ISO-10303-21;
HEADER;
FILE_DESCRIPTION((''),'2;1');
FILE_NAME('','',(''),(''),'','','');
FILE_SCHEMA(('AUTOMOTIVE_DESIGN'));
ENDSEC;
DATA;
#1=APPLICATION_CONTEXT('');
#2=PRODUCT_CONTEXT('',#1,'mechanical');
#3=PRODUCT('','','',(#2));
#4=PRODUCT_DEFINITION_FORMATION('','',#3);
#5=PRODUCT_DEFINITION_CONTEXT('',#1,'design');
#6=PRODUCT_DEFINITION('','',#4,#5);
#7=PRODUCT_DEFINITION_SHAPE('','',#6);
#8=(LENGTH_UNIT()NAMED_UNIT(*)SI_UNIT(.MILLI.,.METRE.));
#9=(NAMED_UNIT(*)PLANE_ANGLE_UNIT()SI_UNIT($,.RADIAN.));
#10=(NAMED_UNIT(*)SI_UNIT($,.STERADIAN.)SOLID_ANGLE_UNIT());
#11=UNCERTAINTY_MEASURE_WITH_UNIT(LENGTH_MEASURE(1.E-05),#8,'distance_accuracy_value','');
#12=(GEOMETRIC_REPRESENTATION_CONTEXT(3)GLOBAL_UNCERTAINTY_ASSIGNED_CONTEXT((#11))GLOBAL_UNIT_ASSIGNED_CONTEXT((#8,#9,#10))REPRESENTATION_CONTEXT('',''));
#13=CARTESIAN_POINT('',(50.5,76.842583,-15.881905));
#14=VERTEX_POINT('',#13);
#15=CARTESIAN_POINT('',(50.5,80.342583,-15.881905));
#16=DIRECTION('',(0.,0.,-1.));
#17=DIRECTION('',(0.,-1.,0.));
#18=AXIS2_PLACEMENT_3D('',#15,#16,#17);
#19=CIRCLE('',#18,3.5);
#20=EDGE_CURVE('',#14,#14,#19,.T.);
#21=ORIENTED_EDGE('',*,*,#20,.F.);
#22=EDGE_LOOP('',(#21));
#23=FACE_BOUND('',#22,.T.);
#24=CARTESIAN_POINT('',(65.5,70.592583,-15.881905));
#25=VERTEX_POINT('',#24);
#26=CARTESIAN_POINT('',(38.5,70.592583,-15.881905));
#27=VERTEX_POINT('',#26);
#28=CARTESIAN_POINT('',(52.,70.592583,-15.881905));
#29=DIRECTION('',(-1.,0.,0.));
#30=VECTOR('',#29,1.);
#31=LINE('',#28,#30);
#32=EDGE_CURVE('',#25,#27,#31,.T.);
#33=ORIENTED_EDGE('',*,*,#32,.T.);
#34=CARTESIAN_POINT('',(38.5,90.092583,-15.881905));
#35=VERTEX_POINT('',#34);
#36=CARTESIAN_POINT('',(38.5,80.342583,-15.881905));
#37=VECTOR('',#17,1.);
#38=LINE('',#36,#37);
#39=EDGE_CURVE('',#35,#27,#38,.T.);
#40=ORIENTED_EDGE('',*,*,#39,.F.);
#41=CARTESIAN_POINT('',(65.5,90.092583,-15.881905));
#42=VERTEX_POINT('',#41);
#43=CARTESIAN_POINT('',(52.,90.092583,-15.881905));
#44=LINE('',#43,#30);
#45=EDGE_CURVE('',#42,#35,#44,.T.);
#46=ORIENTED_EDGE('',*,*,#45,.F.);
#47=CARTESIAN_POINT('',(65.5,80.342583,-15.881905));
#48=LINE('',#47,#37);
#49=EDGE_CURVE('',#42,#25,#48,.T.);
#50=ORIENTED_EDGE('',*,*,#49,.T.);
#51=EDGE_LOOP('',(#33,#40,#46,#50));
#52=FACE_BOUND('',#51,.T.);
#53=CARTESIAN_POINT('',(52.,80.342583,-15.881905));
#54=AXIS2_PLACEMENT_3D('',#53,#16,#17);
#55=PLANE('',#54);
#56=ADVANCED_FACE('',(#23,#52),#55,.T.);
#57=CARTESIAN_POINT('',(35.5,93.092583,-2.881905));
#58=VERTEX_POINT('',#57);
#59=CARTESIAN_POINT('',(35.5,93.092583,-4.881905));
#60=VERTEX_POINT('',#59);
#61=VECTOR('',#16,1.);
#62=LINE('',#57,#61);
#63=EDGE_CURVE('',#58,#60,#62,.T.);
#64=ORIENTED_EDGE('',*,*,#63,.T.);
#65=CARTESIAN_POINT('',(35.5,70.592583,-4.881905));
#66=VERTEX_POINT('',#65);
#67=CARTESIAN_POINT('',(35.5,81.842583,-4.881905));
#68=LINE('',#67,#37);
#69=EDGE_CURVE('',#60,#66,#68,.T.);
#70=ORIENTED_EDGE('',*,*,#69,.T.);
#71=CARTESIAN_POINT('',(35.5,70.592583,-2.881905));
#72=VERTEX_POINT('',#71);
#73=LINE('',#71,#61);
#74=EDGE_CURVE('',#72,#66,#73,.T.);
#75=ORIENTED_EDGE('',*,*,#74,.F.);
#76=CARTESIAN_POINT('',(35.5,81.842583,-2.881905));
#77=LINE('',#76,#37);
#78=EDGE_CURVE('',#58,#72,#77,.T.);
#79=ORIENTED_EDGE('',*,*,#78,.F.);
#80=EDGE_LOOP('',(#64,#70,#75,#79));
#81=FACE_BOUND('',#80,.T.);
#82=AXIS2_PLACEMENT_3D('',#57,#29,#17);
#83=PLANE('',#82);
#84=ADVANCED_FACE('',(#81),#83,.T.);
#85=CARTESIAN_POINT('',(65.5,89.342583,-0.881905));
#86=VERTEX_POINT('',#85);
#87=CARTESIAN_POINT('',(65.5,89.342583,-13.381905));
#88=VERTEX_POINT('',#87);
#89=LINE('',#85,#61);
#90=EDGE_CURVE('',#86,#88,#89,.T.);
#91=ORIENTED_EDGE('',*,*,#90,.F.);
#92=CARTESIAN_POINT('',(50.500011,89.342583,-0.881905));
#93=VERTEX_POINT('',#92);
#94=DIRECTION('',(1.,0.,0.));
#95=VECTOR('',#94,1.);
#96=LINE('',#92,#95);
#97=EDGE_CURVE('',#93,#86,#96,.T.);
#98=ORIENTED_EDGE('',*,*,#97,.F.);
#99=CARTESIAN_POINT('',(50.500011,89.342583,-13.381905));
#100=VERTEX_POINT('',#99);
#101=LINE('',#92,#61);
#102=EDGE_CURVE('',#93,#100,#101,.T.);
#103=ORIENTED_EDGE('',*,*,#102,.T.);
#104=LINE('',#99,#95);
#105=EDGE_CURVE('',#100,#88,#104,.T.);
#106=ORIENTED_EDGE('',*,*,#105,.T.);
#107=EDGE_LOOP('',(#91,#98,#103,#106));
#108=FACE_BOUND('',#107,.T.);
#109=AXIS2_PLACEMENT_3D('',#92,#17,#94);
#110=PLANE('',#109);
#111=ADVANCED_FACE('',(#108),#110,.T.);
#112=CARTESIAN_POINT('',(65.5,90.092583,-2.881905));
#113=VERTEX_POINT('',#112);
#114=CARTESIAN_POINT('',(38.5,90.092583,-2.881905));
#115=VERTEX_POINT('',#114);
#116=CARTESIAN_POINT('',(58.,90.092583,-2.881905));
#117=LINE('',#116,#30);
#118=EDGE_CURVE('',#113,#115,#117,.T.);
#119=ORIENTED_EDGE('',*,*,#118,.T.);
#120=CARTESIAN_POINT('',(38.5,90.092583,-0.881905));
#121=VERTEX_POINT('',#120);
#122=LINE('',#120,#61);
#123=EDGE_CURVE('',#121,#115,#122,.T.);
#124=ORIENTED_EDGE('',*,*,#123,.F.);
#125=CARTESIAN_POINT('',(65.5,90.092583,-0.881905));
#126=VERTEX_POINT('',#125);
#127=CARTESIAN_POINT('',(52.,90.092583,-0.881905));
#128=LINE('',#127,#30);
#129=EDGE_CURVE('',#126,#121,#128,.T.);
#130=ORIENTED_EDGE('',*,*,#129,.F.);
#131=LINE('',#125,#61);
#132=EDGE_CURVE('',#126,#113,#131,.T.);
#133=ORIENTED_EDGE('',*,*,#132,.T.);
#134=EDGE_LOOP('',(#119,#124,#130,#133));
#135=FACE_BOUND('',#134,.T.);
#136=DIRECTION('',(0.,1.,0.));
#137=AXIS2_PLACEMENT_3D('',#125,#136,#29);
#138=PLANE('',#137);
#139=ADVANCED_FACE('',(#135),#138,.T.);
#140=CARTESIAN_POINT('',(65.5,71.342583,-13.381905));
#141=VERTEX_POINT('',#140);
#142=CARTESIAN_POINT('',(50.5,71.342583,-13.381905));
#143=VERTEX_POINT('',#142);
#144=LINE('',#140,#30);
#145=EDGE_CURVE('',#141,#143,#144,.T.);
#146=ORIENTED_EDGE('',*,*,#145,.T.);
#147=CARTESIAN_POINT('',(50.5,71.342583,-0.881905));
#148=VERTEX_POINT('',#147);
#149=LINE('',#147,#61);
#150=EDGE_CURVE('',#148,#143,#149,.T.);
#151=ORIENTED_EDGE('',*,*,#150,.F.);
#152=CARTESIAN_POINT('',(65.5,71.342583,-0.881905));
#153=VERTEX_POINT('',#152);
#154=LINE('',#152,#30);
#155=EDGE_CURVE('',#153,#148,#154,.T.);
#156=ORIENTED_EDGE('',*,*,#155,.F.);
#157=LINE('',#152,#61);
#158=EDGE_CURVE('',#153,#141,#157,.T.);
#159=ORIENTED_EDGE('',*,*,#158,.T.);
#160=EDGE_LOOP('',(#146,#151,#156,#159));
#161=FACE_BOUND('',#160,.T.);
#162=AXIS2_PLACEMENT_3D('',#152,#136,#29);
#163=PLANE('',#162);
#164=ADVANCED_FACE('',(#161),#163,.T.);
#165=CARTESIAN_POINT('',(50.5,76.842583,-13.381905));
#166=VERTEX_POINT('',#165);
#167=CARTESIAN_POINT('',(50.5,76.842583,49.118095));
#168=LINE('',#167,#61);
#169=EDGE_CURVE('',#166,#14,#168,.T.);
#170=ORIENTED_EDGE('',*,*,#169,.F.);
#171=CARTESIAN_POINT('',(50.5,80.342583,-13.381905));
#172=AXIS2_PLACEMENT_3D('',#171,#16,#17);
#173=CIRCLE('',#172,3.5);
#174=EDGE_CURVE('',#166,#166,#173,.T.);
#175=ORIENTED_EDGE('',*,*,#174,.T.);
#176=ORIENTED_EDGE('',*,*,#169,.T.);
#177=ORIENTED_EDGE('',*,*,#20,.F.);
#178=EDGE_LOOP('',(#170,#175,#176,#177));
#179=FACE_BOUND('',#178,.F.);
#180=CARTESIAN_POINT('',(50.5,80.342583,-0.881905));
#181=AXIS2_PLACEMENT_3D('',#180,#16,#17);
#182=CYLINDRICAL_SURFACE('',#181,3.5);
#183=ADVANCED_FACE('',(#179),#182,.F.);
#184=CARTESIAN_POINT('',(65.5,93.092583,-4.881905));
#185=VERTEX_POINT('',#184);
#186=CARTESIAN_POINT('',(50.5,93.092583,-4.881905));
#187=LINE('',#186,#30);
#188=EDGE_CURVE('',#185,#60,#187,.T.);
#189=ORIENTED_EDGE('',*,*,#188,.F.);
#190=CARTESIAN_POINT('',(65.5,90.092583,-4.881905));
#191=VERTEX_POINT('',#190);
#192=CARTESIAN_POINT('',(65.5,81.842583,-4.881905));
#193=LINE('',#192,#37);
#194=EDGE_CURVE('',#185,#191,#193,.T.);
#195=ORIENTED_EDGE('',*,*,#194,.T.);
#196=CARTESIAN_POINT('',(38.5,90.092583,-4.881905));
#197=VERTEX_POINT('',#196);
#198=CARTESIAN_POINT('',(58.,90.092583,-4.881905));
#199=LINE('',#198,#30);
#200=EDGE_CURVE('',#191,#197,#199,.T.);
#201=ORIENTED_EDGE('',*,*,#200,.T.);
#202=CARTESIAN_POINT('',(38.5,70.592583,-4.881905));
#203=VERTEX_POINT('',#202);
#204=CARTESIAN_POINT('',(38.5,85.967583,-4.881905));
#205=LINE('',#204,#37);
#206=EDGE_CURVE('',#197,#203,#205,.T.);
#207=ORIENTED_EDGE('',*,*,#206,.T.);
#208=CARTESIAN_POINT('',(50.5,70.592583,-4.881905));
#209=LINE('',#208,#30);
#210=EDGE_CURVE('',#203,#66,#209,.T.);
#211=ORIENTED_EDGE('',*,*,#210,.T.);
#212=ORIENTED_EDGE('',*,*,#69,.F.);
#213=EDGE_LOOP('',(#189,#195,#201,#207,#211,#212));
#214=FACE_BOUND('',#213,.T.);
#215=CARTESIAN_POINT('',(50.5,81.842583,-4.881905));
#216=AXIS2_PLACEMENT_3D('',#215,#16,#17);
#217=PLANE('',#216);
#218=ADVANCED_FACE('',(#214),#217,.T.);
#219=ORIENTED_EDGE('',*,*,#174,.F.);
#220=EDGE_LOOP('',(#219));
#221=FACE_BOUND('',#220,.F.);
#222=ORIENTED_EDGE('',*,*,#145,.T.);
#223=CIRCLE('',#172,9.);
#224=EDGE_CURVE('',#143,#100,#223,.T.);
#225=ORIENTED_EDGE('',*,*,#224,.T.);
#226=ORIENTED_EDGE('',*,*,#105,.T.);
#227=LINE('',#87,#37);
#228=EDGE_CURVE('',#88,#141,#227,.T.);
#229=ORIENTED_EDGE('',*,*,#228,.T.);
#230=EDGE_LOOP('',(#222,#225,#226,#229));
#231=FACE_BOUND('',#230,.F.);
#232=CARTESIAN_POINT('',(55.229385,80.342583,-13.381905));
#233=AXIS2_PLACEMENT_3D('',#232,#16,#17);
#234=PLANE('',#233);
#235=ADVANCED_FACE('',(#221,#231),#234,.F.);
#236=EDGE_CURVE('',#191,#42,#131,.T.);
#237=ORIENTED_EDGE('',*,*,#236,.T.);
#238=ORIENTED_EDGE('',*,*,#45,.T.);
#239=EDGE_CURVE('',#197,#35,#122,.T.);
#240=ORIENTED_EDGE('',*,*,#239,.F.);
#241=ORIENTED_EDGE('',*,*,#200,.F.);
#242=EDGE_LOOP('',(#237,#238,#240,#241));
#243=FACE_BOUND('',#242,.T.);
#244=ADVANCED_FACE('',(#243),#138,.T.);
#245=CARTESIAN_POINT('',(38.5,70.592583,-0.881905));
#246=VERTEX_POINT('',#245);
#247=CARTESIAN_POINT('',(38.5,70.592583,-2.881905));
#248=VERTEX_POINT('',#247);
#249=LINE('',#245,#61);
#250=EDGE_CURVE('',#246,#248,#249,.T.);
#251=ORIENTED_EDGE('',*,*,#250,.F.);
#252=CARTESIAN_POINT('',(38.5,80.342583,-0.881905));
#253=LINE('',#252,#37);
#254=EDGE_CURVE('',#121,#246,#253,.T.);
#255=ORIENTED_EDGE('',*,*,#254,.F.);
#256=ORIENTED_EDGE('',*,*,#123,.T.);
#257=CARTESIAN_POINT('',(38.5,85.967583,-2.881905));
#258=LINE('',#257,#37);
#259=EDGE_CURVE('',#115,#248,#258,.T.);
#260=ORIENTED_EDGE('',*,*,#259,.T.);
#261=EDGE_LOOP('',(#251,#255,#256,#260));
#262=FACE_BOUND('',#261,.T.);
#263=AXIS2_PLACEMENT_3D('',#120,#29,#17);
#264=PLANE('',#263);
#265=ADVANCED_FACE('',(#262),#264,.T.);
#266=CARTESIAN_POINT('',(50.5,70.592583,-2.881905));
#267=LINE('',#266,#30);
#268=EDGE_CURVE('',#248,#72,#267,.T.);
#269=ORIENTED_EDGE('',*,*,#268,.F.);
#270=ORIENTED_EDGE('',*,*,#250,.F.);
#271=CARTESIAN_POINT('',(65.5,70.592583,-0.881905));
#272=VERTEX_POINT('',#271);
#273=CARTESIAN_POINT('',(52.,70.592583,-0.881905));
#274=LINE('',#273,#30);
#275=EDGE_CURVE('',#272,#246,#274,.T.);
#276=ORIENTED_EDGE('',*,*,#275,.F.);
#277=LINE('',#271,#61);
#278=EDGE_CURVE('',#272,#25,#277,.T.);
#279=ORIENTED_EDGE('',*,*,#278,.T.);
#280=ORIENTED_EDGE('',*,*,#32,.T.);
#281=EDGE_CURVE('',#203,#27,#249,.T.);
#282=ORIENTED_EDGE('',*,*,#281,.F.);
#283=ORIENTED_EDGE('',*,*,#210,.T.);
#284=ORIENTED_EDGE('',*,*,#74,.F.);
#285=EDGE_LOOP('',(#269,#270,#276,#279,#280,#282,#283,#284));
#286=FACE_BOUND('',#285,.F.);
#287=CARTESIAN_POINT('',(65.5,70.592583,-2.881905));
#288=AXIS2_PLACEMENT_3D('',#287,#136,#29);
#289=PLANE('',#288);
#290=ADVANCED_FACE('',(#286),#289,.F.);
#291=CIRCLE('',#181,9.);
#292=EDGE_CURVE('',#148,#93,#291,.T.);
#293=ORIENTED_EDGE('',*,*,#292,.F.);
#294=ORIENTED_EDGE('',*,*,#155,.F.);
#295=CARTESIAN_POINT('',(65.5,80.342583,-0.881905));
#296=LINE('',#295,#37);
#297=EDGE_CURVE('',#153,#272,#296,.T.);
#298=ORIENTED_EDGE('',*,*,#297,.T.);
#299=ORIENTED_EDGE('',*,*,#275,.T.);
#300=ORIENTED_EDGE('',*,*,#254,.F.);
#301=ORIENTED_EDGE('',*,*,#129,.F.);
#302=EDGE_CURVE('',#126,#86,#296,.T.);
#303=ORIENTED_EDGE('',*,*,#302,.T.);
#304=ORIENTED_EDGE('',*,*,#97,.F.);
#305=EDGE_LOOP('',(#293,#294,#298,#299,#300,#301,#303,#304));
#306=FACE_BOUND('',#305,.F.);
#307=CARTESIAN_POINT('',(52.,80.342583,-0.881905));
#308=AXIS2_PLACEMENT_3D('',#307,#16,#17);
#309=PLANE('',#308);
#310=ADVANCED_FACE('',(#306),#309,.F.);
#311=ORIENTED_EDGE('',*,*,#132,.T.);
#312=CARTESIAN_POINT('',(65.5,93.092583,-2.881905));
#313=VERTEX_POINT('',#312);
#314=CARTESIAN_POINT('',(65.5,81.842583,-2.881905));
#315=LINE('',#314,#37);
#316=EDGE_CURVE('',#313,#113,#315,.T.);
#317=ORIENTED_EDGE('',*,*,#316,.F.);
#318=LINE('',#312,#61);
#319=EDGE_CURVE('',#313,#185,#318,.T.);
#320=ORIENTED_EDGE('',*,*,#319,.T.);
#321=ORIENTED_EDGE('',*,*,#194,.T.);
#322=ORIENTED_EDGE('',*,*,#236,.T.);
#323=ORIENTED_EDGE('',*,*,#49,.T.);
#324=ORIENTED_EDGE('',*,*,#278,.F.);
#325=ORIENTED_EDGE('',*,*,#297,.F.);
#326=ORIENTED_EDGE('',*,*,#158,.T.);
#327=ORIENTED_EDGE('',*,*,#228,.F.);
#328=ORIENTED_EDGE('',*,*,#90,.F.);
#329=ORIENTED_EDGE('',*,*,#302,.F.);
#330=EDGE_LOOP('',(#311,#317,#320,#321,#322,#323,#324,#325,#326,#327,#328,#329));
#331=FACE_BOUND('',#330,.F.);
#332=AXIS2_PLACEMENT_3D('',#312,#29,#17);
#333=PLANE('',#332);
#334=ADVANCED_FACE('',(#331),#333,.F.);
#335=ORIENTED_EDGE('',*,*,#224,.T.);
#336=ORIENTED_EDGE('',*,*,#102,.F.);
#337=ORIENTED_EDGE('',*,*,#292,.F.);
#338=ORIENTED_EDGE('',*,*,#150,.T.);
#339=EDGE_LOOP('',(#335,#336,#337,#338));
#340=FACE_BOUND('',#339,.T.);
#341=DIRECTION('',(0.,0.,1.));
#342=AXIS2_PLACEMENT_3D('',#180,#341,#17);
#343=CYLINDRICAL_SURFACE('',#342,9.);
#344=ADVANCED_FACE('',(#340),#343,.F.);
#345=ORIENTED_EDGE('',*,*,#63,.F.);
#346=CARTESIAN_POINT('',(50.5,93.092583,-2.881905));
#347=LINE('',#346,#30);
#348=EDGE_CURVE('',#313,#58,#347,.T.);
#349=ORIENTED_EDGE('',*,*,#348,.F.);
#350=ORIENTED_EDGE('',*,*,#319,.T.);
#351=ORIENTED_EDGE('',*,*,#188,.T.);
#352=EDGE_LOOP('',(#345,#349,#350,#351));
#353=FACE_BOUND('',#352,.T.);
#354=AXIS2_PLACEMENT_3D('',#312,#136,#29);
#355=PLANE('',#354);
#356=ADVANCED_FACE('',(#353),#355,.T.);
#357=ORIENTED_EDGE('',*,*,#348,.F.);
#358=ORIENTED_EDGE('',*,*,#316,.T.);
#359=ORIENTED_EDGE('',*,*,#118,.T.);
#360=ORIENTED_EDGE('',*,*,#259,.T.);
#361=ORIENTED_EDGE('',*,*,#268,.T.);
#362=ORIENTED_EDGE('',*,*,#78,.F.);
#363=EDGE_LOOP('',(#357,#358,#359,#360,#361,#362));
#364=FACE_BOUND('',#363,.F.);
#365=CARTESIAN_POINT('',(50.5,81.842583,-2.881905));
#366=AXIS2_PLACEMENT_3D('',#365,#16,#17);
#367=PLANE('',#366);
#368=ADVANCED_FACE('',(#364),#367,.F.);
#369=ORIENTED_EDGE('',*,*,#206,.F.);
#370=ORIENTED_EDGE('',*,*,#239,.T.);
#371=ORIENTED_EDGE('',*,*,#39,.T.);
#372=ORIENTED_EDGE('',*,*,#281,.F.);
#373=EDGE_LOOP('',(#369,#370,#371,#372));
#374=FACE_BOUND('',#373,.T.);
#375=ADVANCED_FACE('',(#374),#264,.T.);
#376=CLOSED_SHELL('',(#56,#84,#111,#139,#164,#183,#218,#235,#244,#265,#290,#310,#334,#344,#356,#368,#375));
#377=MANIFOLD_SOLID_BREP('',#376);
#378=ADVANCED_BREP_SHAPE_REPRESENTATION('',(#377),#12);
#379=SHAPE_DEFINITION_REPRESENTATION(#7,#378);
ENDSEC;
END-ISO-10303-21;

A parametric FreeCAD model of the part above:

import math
import FreeCAD as App
import Part
import Sketcher
from FreeCAD import Vector
Q = App.Units.Quantity


def add_polygon(sketch, points):
    """Adds a closed chain of lines whose ends are joined by coincident constraints."""
    first, n = sketch.GeometryCount, len(points)
    for a, b in zip(points, points[1:] + points[:1]):
        sketch.addGeometry(Part.LineSegment(App.Vector(*a, 0), App.Vector(*b, 0)), False)
    for i in range(n):
        sketch.addConstraint(Sketcher.Constraint("Coincident", first + i, 2, first + (i + 1) % n, 1))

doc = App.newDocument("Part")
body = doc.addObject("PartDesign::Body", "Body")

# Sketch on XY plane
sketch1 = doc.addObject("Sketcher::SketchObject", "Sketch")
body.addObject(sketch1)
sketch1.AttachmentSupport = (doc.XY_Plane, [""])
sketch1.MapMode = "FlatFace"
add_polygon(sketch1, [(0, 27), (0, 0), (20, 0), (20, 27)])  # lines 0-3
sketch1.addConstraint([
    Sketcher.Constraint("Vertical", 0),
    Sketcher.Constraint("Horizontal", 1),
    Sketcher.Constraint("Vertical", 2),
    Sketcher.Constraint("Horizontal", 3),
    Sketcher.Constraint("Coincident", 0, 2, -1, 1),
    Sketcher.Constraint("DistanceY", 0, 2, 0, 1, Q("27 mm")),
    Sketcher.Constraint("DistanceX", 1, 1, 1, 2, Q("19.5 mm")),
])
pad1 = doc.addObject("PartDesign::Pad", "Pad")
body.addObject(pad1)
pad1.Profile = sketch1
pad1.Length = 15

# Sketch on XY plane
sketch2 = doc.addObject("Sketcher::SketchObject", "Sketch001")
body.addObject(sketch2)
sketch2.AttachmentSupport = (doc.XY_Plane, [""])
sketch2.MapMode = "FlatFace"
sketch2.AttachmentOffset = App.Placement(Vector(0, 0, 2), App.Rotation())
add_polygon(sketch2, [(-3, 30), (-3, 0), (20, 0), (20, 30)])  # lines 0-3
sketch2.addConstraint([
    Sketcher.Constraint("Vertical", 0),
    Sketcher.Constraint("Horizontal", 1),
    Sketcher.Constraint("Vertical", 2),
    Sketcher.Constraint("Horizontal", 3),
    Sketcher.Constraint("PointOnObject", 0, 2, -1),
    Sketcher.Constraint("DistanceY", 0, 2, 0, 1, Q("30 mm")),
    Sketcher.Constraint("DistanceX", 1, 1, 1, 2, Q("22.5 mm")),
    Sketcher.Constraint("DistanceX", 0, 2, -1, 1, Q("3 mm")),
])
pad2 = doc.addObject("PartDesign::Pad", "Pad001")
body.addObject(pad2)
pad2.Profile = sketch2
pad2.Length = 2

# Sketch on XY plane
sketch3 = doc.addObject("Sketcher::SketchObject", "Sketch002")
body.addObject(sketch3)
sketch3.AttachmentSupport = (doc.XY_Plane, [""])
sketch3.MapMode = "FlatFace"
sketch3.addGeometry([
    Part.ArcOfCircle(Part.Circle(Vector(10, 15, 0), Vector(0, 0, 1), 9), math.radians(0), math.radians(180)),
    Part.LineSegment(Vector(1, 15, 0), Vector(1, 0, 0)),
    Part.LineSegment(Vector(1, 0, 0), Vector(19, 0, 0)),
    Part.LineSegment(Vector(19, 0, 0), Vector(19, 15, 0)),
], False)
sketch3.addConstraint([
    Sketcher.Constraint("Tangent", 0, 2, 1, 1),
    Sketcher.Constraint("Coincident", 1, 2, 2, 1),
    Sketcher.Constraint("Coincident", 2, 2, 3, 1),
    Sketcher.Constraint("Tangent", 3, 2, 0, 1),
    Sketcher.Constraint("Vertical", 1),
    Sketcher.Constraint("Horizontal", 2),
    Sketcher.Constraint("Vertical", 3),
    Sketcher.Constraint("PointOnObject", 1, 2, -1),
    Sketcher.Constraint("Radius", 0, Q("9 mm")),
    Sketcher.Constraint("DistanceY", 3, 1, 3, 2, Q("15 mm")),
    Sketcher.Constraint("DistanceX", -1, 1, 0, 3, Q("9.75 mm")),
])
pocket1 = doc.addObject("PartDesign::Pocket", "Pocket")
body.addObject(pocket1)
pocket1.Profile = sketch3
pocket1.Length = 12.5
pocket1.Reversed = True

# Sketch on XY plane
sketch4 = doc.addObject("Sketcher::SketchObject", "Sketch003")
body.addObject(sketch4)
sketch4.AttachmentSupport = (doc.XY_Plane, [""])
sketch4.MapMode = "FlatFace"
sketch4.addGeometry(Part.Circle(Vector(9.8, 15, 0), Vector(0, 0, 1), 3.5), False)
sketch4.addConstraint([
    Sketcher.Constraint("Diameter", 0, Q("7 mm")),
    Sketcher.Constraint("DistanceY", -1, 1, 0, 3, Q("15 mm")),
    Sketcher.Constraint("DistanceX", -1, 1, 0, 3, Q("9.75 mm")),
])
pocket2 = doc.addObject("PartDesign::Pocket", "Pocket001")
body.addObject(pocket2)
pocket2.Profile = sketch4
pocket2.Length = 100
pocket2.Midplane = True
body2 = doc.addObject("PartDesign::Body", "Body001")
doc.recompute()

body.Placement = App.Placement(Vector(0, 0, 0), App.Rotation(Vector(1, 0, 0), 180))
boolean = doc.addObject("PartDesign::Boolean", "Boolean")
body2.addObject(boolean)
boolean.Type = "Fuse"
boolean.addObjects([body])
body3 = doc.addObject("PartDesign::Body", "Body002")
doc.recompute()

body2.Placement = App.Placement(Vector(65.5, 90.092583, -0.881905), App.Rotation(Vector(0, 0, 1), 270))
boolean2 = doc.addObject("PartDesign::Boolean", "Boolean001")
body3.addObject(boolean2)
boolean2.Type = "Fuse"
boolean2.addObjects([body2])

doc.recompute()
